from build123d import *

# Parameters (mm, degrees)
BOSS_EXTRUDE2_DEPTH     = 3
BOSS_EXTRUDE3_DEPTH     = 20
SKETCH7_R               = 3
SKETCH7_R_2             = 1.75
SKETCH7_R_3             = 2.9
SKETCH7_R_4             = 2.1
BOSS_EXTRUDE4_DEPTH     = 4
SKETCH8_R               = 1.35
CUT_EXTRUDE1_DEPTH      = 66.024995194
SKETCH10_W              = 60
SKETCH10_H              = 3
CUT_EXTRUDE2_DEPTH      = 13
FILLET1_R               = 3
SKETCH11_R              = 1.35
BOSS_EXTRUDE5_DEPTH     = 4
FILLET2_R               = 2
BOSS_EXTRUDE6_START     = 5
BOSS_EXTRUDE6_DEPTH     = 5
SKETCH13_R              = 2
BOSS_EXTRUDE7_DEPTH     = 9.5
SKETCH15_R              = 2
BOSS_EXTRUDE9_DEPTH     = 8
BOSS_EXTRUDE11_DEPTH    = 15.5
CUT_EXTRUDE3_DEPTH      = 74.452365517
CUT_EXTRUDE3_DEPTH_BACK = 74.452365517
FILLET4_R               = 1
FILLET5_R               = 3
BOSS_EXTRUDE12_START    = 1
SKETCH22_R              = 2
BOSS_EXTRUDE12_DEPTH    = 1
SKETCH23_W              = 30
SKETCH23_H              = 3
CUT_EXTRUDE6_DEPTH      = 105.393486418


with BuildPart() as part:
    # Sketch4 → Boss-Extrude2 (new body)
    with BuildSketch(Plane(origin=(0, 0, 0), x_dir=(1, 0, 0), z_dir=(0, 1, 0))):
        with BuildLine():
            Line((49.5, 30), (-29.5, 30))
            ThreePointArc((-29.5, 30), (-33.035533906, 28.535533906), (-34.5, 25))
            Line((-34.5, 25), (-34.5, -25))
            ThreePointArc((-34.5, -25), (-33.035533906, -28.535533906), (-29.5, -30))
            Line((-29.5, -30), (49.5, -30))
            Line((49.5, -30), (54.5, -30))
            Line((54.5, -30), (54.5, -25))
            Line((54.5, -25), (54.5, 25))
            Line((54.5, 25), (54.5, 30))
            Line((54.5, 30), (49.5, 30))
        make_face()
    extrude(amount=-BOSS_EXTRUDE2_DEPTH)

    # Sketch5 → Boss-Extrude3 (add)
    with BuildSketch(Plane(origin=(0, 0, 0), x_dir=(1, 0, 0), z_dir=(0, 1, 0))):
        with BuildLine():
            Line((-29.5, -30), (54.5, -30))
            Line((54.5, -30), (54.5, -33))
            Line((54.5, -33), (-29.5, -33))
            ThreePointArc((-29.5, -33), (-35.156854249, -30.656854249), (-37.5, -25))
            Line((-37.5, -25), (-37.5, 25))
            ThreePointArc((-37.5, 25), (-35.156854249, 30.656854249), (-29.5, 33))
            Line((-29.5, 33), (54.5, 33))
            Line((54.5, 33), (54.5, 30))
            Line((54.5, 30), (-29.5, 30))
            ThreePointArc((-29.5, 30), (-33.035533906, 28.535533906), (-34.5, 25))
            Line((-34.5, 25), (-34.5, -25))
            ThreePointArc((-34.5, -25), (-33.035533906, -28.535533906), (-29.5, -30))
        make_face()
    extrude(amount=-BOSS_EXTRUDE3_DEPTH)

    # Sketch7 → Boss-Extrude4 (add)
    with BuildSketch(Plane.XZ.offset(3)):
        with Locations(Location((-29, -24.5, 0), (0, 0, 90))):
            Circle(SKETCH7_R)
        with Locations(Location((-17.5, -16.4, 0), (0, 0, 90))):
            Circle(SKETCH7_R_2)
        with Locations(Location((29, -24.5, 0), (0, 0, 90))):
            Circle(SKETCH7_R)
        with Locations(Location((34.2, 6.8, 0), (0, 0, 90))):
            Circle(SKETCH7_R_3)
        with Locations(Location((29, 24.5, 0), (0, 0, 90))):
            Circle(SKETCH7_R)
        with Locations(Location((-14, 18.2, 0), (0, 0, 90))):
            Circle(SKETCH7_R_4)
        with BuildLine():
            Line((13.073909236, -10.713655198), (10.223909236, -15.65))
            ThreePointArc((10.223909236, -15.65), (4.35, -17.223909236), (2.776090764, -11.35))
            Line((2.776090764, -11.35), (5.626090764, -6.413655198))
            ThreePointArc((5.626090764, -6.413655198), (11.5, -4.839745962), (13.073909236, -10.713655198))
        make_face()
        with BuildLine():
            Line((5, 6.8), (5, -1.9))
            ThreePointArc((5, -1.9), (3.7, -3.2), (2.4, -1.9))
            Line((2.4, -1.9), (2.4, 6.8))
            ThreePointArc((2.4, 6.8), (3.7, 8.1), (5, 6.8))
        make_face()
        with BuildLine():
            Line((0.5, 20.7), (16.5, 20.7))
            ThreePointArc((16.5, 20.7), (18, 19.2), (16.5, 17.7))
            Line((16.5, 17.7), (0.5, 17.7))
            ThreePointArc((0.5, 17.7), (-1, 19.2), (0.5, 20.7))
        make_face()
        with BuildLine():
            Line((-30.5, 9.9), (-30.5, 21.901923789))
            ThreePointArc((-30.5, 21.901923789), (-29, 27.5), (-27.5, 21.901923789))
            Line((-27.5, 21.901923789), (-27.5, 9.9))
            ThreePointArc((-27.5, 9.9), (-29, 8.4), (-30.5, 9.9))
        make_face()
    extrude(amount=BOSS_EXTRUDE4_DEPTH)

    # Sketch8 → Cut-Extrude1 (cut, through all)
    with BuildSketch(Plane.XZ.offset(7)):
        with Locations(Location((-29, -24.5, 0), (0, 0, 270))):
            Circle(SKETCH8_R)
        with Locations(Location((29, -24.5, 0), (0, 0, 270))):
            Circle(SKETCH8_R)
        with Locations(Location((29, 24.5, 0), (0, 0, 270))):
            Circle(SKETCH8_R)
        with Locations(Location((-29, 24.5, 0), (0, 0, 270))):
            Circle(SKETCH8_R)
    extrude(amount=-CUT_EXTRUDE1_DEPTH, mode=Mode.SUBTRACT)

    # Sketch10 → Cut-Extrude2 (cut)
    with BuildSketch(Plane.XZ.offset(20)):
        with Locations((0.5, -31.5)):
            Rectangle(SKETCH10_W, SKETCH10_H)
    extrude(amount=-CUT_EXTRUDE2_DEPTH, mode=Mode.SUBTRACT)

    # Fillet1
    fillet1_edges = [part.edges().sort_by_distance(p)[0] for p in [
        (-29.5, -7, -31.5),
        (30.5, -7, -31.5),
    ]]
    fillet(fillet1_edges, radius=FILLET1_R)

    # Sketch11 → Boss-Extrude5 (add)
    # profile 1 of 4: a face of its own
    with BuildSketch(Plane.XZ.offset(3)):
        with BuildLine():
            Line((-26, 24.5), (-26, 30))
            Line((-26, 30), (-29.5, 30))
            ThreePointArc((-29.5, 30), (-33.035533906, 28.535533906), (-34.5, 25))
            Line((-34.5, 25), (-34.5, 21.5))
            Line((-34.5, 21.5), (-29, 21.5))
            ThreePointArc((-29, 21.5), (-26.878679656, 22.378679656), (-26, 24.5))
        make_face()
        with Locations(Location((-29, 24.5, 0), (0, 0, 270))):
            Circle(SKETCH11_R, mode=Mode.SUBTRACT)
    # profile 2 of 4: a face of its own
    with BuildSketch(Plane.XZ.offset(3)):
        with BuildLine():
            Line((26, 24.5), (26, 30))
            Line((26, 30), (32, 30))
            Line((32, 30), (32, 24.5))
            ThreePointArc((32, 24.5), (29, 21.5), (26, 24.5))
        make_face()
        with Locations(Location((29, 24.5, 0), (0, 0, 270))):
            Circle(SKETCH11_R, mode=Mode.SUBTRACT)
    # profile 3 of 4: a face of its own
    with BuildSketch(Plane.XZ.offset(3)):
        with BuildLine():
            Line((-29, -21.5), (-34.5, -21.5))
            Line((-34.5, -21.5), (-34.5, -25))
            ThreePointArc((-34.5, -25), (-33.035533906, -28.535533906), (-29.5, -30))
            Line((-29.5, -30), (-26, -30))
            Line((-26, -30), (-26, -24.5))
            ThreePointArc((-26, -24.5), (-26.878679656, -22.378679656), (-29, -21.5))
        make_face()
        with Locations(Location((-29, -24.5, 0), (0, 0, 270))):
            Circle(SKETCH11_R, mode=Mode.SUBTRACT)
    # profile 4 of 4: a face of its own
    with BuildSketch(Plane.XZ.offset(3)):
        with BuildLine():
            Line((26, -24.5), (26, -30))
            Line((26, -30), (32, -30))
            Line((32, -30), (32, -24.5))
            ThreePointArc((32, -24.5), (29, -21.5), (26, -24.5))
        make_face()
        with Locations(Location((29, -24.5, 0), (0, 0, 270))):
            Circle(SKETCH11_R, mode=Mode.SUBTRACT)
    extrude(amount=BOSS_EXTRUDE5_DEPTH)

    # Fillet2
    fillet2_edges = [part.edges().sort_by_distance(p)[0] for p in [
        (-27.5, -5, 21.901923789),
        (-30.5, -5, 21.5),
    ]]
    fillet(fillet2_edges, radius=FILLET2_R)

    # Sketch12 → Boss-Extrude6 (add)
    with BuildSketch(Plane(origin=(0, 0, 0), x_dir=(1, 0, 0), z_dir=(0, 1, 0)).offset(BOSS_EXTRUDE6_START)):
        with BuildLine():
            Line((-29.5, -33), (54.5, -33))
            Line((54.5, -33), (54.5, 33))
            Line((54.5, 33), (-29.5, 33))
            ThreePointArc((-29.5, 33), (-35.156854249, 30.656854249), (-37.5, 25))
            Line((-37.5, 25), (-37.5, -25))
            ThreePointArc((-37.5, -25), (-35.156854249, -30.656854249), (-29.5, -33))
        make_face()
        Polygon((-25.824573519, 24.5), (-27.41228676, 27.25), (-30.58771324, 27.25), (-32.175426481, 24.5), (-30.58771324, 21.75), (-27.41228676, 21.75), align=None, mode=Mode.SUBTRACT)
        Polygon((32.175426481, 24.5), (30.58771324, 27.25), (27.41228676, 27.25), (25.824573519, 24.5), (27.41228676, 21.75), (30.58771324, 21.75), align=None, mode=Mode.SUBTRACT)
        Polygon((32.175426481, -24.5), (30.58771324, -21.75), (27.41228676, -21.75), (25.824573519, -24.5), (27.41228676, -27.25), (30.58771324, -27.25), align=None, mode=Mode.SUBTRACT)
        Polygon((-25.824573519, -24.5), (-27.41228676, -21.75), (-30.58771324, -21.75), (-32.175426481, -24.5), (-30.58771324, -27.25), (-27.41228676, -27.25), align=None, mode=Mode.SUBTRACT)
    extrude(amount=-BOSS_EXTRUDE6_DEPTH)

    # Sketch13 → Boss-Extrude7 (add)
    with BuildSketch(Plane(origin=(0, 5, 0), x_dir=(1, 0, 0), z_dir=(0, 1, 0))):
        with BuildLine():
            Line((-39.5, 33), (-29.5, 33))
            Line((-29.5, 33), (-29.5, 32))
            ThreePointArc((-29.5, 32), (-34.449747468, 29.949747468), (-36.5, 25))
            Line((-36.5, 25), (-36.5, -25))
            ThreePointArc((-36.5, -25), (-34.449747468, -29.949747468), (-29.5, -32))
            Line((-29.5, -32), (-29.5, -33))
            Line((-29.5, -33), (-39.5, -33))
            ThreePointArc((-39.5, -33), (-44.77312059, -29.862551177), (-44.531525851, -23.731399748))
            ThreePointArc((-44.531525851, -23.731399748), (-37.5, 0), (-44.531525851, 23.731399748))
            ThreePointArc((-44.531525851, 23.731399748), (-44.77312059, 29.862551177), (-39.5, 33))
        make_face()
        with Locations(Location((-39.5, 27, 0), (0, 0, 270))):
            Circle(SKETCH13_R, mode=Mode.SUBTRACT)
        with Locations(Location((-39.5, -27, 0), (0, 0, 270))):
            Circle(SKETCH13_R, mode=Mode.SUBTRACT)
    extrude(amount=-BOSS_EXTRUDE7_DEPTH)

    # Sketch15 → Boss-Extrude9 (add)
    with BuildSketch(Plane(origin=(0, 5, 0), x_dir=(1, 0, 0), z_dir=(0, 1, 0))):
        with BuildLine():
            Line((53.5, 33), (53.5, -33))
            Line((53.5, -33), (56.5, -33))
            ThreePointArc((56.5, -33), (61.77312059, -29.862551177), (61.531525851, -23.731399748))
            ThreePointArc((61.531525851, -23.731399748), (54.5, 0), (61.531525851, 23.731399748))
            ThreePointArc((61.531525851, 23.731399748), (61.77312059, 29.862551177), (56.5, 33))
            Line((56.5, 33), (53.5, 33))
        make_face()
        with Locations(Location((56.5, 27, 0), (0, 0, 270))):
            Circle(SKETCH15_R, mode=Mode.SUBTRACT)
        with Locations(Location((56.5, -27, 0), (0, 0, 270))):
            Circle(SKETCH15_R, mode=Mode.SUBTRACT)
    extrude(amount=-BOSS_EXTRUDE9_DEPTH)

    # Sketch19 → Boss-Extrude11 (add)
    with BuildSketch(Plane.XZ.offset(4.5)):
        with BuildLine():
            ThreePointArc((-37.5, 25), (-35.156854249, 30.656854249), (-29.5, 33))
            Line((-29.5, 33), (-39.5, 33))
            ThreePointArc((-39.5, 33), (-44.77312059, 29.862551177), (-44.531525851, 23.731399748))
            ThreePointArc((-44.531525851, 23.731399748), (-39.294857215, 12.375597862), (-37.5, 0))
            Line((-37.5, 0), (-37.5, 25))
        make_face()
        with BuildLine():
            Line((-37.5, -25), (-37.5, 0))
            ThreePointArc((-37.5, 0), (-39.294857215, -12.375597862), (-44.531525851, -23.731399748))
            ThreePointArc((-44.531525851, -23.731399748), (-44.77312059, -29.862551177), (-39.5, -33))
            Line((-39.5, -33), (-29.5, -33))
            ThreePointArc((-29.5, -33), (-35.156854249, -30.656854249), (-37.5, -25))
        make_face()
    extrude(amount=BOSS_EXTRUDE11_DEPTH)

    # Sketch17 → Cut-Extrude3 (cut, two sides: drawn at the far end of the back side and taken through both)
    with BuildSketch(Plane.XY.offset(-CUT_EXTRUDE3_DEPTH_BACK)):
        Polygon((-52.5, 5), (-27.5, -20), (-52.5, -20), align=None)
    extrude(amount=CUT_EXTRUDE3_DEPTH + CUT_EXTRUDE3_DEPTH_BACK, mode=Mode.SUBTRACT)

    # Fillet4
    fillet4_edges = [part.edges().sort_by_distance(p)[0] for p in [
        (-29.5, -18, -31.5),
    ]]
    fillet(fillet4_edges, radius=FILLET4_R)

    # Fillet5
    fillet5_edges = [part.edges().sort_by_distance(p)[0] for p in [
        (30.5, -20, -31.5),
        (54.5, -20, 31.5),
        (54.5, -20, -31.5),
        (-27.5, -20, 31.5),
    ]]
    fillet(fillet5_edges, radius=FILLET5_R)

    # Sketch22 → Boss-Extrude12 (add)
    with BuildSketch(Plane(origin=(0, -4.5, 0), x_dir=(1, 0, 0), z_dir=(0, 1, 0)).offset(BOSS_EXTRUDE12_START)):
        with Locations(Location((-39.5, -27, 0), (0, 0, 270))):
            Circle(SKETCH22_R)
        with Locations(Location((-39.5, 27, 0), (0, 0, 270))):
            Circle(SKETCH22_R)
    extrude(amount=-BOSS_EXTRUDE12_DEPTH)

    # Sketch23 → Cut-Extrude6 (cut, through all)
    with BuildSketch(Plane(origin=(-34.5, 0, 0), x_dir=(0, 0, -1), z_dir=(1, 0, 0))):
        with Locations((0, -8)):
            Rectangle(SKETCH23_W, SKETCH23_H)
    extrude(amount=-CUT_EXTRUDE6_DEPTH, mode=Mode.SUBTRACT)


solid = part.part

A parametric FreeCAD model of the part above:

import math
import FreeCAD as App
import Part
import Sketcher

V = App.Vector
Q = App.Units.Quantity


def edges_at(feature, points):
    """Names of the edges that pass closest to the given points."""
    edges = feature.Shape.Edges
    near = lambda p: min(range(len(edges)), key=lambda i: edges[i].distToShape(Part.Vertex(*p))[0])
    return sorted({f"Edge{near(p) + 1}" for p in points})


def add_polygon(sketch, points):
    """Adds a closed chain of lines whose ends are joined by coincident constraints."""
    first, n = sketch.GeometryCount, len(points)
    for a, b in zip(points, points[1:] + points[:1]):
        sketch.addGeometry(Part.LineSegment(App.Vector(*a, 0), App.Vector(*b, 0)), False)
    for i in range(n):
        sketch.addConstraint(Sketcher.Constraint("Coincident", first + i, 2, first + (i + 1) % n, 1))

doc = App.newDocument("Part")
body = doc.addObject("PartDesign::Body", "Body")

# Sketch on XZ plane
sketch1 = body.newObject("Sketcher::SketchObject", "Sketch")
sketch1.AttachmentSupport = (doc.getObject("XZ_Plane"), [""])
sketch1.MapMode = "FlatFace"
sketch1.addGeometry(Part.ArcOfCircle(Part.Circle(V(-30, -25, 0), V(0, 0, 1), 5), math.radians(180), math.radians(270)), False)
sketch1.addGeometry(Part.LineSegment(V(-34, -25, 0), V(-34, 25, 0)), False)
sketch1.addGeometry(Part.ArcOfCircle(Part.Circle(V(-30, 25, 0), V(0, 0, 1), 5), math.radians(90), math.radians(180)), False)
sketch1.addGeometry(Part.LineSegment(V(-30, 30, 0), V(54, 30, 0)), False)
sketch1.addGeometry(Part.LineSegment(V(54, 30, 0), V(54, -30, 0)), False)
sketch1.addGeometry(Part.LineSegment(V(54, -30, 0), V(-30, -30, 0)), False)
sketch1.addConstraint(Sketcher.Constraint("Tangent", 0, 1, 1, 1))
sketch1.addConstraint(Sketcher.Constraint("Tangent", 1, 2, 2, 2))
sketch1.addConstraint(Sketcher.Constraint("Tangent", 2, 1, 3, 1))
sketch1.addConstraint(Sketcher.Constraint("Coincident", 3, 2, 4, 1))
sketch1.addConstraint(Sketcher.Constraint("Coincident", 4, 2, 5, 1))
sketch1.addConstraint(Sketcher.Constraint("Tangent", 5, 2, 0, 2))
sketch1.addConstraint(Sketcher.Constraint("Vertical", 1))
sketch1.addConstraint(Sketcher.Constraint("Horizontal", 3))
sketch1.addConstraint(Sketcher.Constraint("Vertical", 4))
sketch1.addConstraint(Sketcher.Constraint("Horizontal", 5))
sketch1.addConstraint(Sketcher.Constraint("Equal", 0, 2))
sketch1.addConstraint(Sketcher.Constraint("Radius", 0, 5.0))
sketch1.addConstraint(Sketcher.Constraint("DistanceX", 3, 1, 3, 2, 84.0))
sketch1.addConstraint(Sketcher.Constraint("DistanceY", 1, 1, 1, 2, 50.0))
sketch1.addConstraint(Sketcher.Constraint("DistanceY", 0, 3, -1, 1, 25.0))
sketch1.addConstraint(Sketcher.Constraint("DistanceX", 0, 3, -1, 1, 29.5))
pad1 = body.newObject("PartDesign::Pad", "Pad")
pad1.Profile = sketch1
pad1.Length = 3

# Sketch on XZ plane
sketch2 = body.newObject("Sketcher::SketchObject", "Sketch001")
sketch2.AttachmentSupport = (doc.getObject("XZ_Plane"), [""])
sketch2.MapMode = "FlatFace"
sketch2.addGeometry(Part.LineSegment(V(54.5, 30, 0), V(-29.5, 30, 0)), False)
sketch2.addGeometry(Part.ArcOfCircle(Part.Circle(V(-29.5, 25, 0), V(0, 0, 1), 5), math.radians(90), math.radians(180)), False)
sketch2.addGeometry(Part.LineSegment(V(-34.5, 25, 0), V(-34.5, -25, 0)), False)
sketch2.addGeometry(Part.ArcOfCircle(Part.Circle(V(-29.5, -25, 0), V(0, 0, 1), 5), math.radians(180), math.radians(270)), False)
sketch2.addGeometry(Part.LineSegment(V(-29.5, -30, 0), V(54.5, -30, 0)), False)
sketch2.addGeometry(Part.LineSegment(V(54.5, -30, 0), V(54.5, -33, 0)), False)
sketch2.addGeometry(Part.LineSegment(V(54.5, -33, 0), V(-29.5, -33, 0)), False)
sketch2.addGeometry(Part.ArcOfCircle(Part.Circle(V(-29.5, -25, 0), V(0, 0, 1), 8), math.radians(-180), math.radians(-90)), False)
sketch2.addGeometry(Part.LineSegment(V(-37.5, -25, 0), V(-37.5, 25, 0)), False)
sketch2.addGeometry(Part.ArcOfCircle(Part.Circle(V(-29.5, 25, 0), V(0, 0, 1), 8), math.radians(90), math.radians(180)), False)
sketch2.addGeometry(Part.LineSegment(V(-29.5, 33, 0), V(54.5, 33, 0)), False)
sketch2.addGeometry(Part.LineSegment(V(54.5, 33, 0), V(54.5, 30, 0)), False)
sketch2.addConstraint(Sketcher.Constraint("Tangent", 0, 2, 1, 1))
sketch2.addConstraint(Sketcher.Constraint("Tangent", 1, 2, 2, 1))
sketch2.addConstraint(Sketcher.Constraint("Tangent", 2, 2, 3, 1))
sketch2.addConstraint(Sketcher.Constraint("Tangent", 3, 2, 4, 1))
sketch2.addConstraint(Sketcher.Constraint("Coincident", 4, 2, 5, 1))
sketch2.addConstraint(Sketcher.Constraint("Coincident", 5, 2, 6, 1))
sketch2.addConstraint(Sketcher.Constraint("Tangent", 6, 2, 7, 2))
sketch2.addConstraint(Sketcher.Constraint("Tangent", 7, 1, 8, 1))
sketch2.addConstraint(Sketcher.Constraint("Tangent", 8, 2, 9, 2))
sketch2.addConstraint(Sketcher.Constraint("Tangent", 9, 1, 10, 1))
sketch2.addConstraint(Sketcher.Constraint("Coincident", 10, 2, 11, 1))
sketch2.addConstraint(Sketcher.Constraint("Coincident", 11, 2, 0, 1))
sketch2.addConstraint(Sketcher.Constraint("Horizontal", 0))
sketch2.addConstraint(Sketcher.Constraint("Vertical", 2))
sketch2.addConstraint(Sketcher.Constraint("Horizontal", 4))
sketch2.addConstraint(Sketcher.Constraint("Vertical", 5))
sketch2.addConstraint(Sketcher.Constraint("Horizontal", 6))
sketch2.addConstraint(Sketcher.Constraint("Vertical", 8))
sketch2.addConstraint(Sketcher.Constraint("Horizontal", 10))
sketch2.addConstraint(Sketcher.Constraint("Vertical", 11))
sketch2.addConstraint(Sketcher.Constraint("Coincident", 7, 3, 3, 3))
sketch2.addConstraint(Sketcher.Constraint("Coincident", 9, 3, 1, 3))
sketch2.addConstraint(Sketcher.Constraint("Equal", 1, 3))
sketch2.addConstraint(Sketcher.Constraint("Symmetric", 5, 2, 10, 2, -1))
sketch2.addConstraint(Sketcher.Constraint("Radius", 1, 5.0))
sketch2.addConstraint(Sketcher.Constraint("Radius", 7, 8.0))
sketch2.addConstraint(Sketcher.Constraint("DistanceX", 0, 2, 0, 1, 84.0))
sketch2.addConstraint(Sketcher.Constraint("DistanceY", 2, 2, 2, 1, 50.0))
sketch2.addConstraint(Sketcher.Constraint("DistanceX", 1, 3, -1, 1, 29.5))
pad2 = body.newObject("PartDesign::Pad", "Pad001")
pad2.Profile = sketch2
pad2.Length = 20

# Sketch on XZ plane
sketch3 = body.newObject("Sketcher::SketchObject", "Sketch002")
sketch3.AttachmentSupport = (doc.getObject("XZ_Plane"), [""])
sketch3.MapMode = "FlatFace"
sketch3.AttachmentOffset = App.Placement(V(0, 0, 3), App.Rotation())
sketch3.addGeometry(Part.Circle(V(-29, -24.5, 0), V(0, 0, 1), 3), False)
sketch3.addGeometry(Part.Circle(V(-17.5, -16.4, 0), V(0, 0, 1), 1.8), False)
sketch3.addGeometry(Part.Circle(V(29, -24.5, 0), V(0, 0, 1), 3), False)
sketch3.addGeometry(Part.Circle(V(34.2, 6.8, 0), V(0, 0, 1), 2.9), False)
sketch3.addGeometry(Part.Circle(V(29, 24.5, 0), V(0, 0, 1), 3), False)
sketch3.addGeometry(Part.Circle(V(-14, 18.2, 0), V(0, 0, 1), 2.1), False)
sketch3.addGeometry(Part.LineSegment(V(10.2, -15.7, 0), V(13.1, -10.7, 0)), False)
sketch3.addGeometry(Part.ArcOfCircle(Part.Circle(V(9.3, -8.6, 0), V(0, 0, 1), 4.3), math.radians(-30), math.radians(150)), False)
sketch3.addGeometry(Part.LineSegment(V(5.6, -6.4, 0), V(2.8, -11.3, 0)), False)
sketch3.addGeometry(Part.ArcOfCircle(Part.Circle(V(6.5, -13.5, 0), V(0, 0, 1), 4.3), math.radians(150), math.radians(330)), False)
sketch3.addGeometry(Part.LineSegment(V(5, -1.9, 0), V(5, 6.8, 0)), False)
sketch3.addGeometry(Part.ArcOfCircle(Part.Circle(V(3.7, 6.8, 0), V(0, 0, 1), 1.3), math.radians(0), math.radians(180)), False)
sketch3.addGeometry(Part.LineSegment(V(2.4, 6.8, 0), V(2.4, -1.9, 0)), False)
sketch3.addGeometry(Part.ArcOfCircle(Part.Circle(V(3.7, -1.9, 0), V(0, 0, 1), 1.3), math.radians(180), math.radians(360)), False)
sketch3.addGeometry(Part.LineSegment(V(16.5, 20.7, 0), V(0.5, 20.7, 0)), False)
sketch3.addGeometry(Part.ArcOfCircle(Part.Circle(V(0.5, 19.2, 0), V(0, 0, 1), 1.5), math.radians(90), math.radians(270)), False)
sketch3.addGeometry(Part.LineSegment(V(0.5, 17.7, 0), V(16.5, 17.7, 0)), False)
sketch3.addGeometry(Part.ArcOfCircle(Part.Circle(V(16.5, 19.2, 0), V(0, 0, 1), 1.5), math.radians(-90), math.radians(90)), False)
sketch3.addGeometry(Part.LineSegment(V(-30.5, 21.9, 0), V(-30.5, 9.9, 0)), False)
sketch3.addGeometry(Part.ArcOfCircle(Part.Circle(V(-29, 9.9, 0), V(0, 0, 1), 1.5), math.radians(180), math.radians(360)), False)
sketch3.addGeometry(Part.LineSegment(V(-27.5, 9.9, 0), V(-27.5, 21.9, 0)), False)
sketch3.addGeometry(Part.ArcOfCircle(Part.Circle(V(-29, 24.5, 0), V(0, 0, 1), 3), math.radians(-60), math.radians(240)), False)
sketch3.addConstraint(Sketcher.Constraint("Tangent", 6, 2, 7, 1))
sketch3.addConstraint(Sketcher.Constraint("Tangent", 7, 2, 8, 1))
sketch3.addConstraint(Sketcher.Constraint("Tangent", 8, 2, 9, 1))
sketch3.addConstraint(Sketcher.Constraint("Tangent", 9, 2, 6, 1))
sketch3.addConstraint(Sketcher.Constraint("Tangent", 10, 2, 11, 1))
sketch3.addConstraint(Sketcher.Constraint("Tangent", 11, 2, 12, 1))
sketch3.addConstraint(Sketcher.Constraint("Tangent", 12, 2, 13, 1))
sketch3.addConstraint(Sketcher.Constraint("Tangent", 13, 2, 10, 1))
sketch3.addConstraint(Sketcher.Constraint("Tangent", 14, 2, 15, 1))
sketch3.addConstraint(Sketcher.Constraint("Tangent", 15, 2, 16, 1))
sketch3.addConstraint(Sketcher.Constraint("Tangent", 16, 2, 17, 1))
sketch3.addConstraint(Sketcher.Constraint("Tangent", 17, 2, 14, 1))
sketch3.addConstraint(Sketcher.Constraint("Tangent", 18, 2, 19, 1))
sketch3.addConstraint(Sketcher.Constraint("Tangent", 19, 2, 20, 1))
sketch3.addConstraint(Sketcher.Constraint("Coincident", 20, 2, 21, 1))
sketch3.addConstraint(Sketcher.Constraint("Coincident", 21, 2, 18, 1))
sketch3.addConstraint(Sketcher.Constraint("Vertical", 10))
sketch3.addConstraint(Sketcher.Constraint("Vertical", 12))
sketch3.addConstraint(Sketcher.Constraint("Horizontal", 14))
sketch3.addConstraint(Sketcher.Constraint("Horizontal", 16))
sketch3.addConstraint(Sketcher.Constraint("Vertical", 18))
sketch3.addConstraint(Sketcher.Constraint("Vertical", 20))
sketch3.addConstraint(Sketcher.Constraint("Equal", 0, 2))
sketch3.addConstraint(Sketcher.Constraint("Equal", 2, 4))
sketch3.addConstraint(Sketcher.Constraint("Equal", 7, 9))
sketch3.addConstraint(Sketcher.Constraint("Equal", 17, 19))
sketch3.addConstraint(Sketcher.Constraint("Equal", 4, 21))
sketch3.addConstraint(Sketcher.Constraint("Symmetric", 0, 3, 4, 3, -1, 1))
sketch3.addConstraint(Sketcher.Constraint("Symmetric", 2, 3, 21, 3, -1, 1))
sketch3.addConstraint(Sketcher.Constraint("Symmetric", 0, 3, 2, 3, -2))
sketch3.addConstraint(Sketcher.Constraint("Horizontal", 3, 3, 11, 3))
sketch3.addConstraint(Sketcher.Constraint("Horizontal", 20, 2, 21, 2))
sketch3.addConstraint(Sketcher.Constraint("Diameter", 0, 6.0))
sketch3.addConstraint(Sketcher.Constraint("Diameter", 1, 3.5))
sketch3.addConstraint(Sketcher.Constraint("Diameter", 3, 5.8))
sketch3.addConstraint(Sketcher.Constraint("Diameter", 5, 4.2))
sketch3.addConstraint(Sketcher.Constraint("Radius", 7, 4.3))
sketch3.addConstraint(Sketcher.Constraint("Radius", 11, 1.3))
sketch3.addConstraint(Sketcher.Constraint("Radius", 15, 1.5))
sketch3.addConstraint(Sketcher.Constraint("DistanceX", 14, 2, 14, 1, 16.0))
sketch3.addConstraint(Sketcher.Constraint("Angle", 6, Q("60 deg")))
sketch3.addConstraint(Sketcher.Constraint("DistanceY", 10, 1, 10, 2, 8.7))
sketch3.addConstraint(Sketcher.Constraint("DistanceX", 0, 3, -1, 1, 29.0))
sketch3.addConstraint(Sketcher.Constraint("DistanceX", 5, 3, -1, 1, 14.0))
sketch3.addConstraint(Sketcher.Constraint("DistanceX", -1, 1, 10, 2, 5.0))
sketch3.addConstraint(Sketcher.Constraint("DistanceY", 2, 3, 4, 3, 49.0))
sketch3.addConstraint(Sketcher.Constraint("DistanceX", 1, 3, 9, 3, 24.0))
sketch3.addConstraint(Sketcher.Constraint("DistanceY", 2, 3, 9, 3, 11.0))
sketch3.addConstraint(Sketcher.Constraint("DistanceY", 5, 3, 15, 3, 1.0))
sketch3.addConstraint(Sketcher.Constraint("DistanceX", 18, 2, 1, 3, 13.0))
sketch3.addConstraint(Sketcher.Constraint("DistanceX", 18, 2, 15, 2, 31.0))
sketch3.addConstraint(Sketcher.Constraint("Distance", 6, 5.7))
sketch3.addConstraint(Sketcher.Constraint("DistanceY", 1, 3, -1, 1, 16.4))
sketch3.addConstraint(Sketcher.Constraint("DistanceX", -1, 1, 3, 3, 34.2))
sketch3.addConstraint(Sketcher.Constraint("DistanceY", -1, 1, 3, 3, 6.8))
sketch3.addConstraint(Sketcher.Constraint("DistanceY", -1, 1, 5, 3, 18.2))
sketch3.addConstraint(Sketcher.Constraint("DistanceY", -1, 1, 19, 3, 9.9))
pad3 = body.newObject("PartDesign::Pad", "Pad002")
pad3.Profile = sketch3
pad3.Length = 4

# Sketch on XZ plane
sketch4 = body.newObject("Sketcher::SketchObject", "Sketch003")
sketch4.AttachmentSupport = (doc.getObject("XZ_Plane"), [""])
sketch4.MapMode = "FlatFace"
sketch4.AttachmentOffset = App.Placement(V(0, 0, 7), App.Rotation())
sketch4.addGeometry(Part.Circle(V(-29, -24.5, 0), V(0, 0, 1), 1.4), False)
sketch4.addGeometry(Part.Circle(V(29, -24.5, 0), V(0, 0, 1), 1.4), False)
sketch4.addGeometry(Part.Circle(V(29, 24.5, 0), V(0, 0, 1), 1.4), False)
sketch4.addGeometry(Part.Circle(V(-29, 24.5, 0), V(0, 0, 1), 1.4), False)
sketch4.addConstraint(Sketcher.Constraint("Equal", 0, 1))
sketch4.addConstraint(Sketcher.Constraint("Equal", 1, 2))
sketch4.addConstraint(Sketcher.Constraint("Equal", 2, 3))
sketch4.addConstraint(Sketcher.Constraint("Symmetric", 0, 3, 2, 3, -1, 1))
sketch4.addConstraint(Sketcher.Constraint("Symmetric", 1, 3, 3, 3, -1, 1))
sketch4.addConstraint(Sketcher.Constraint("Symmetric", 0, 3, 1, 3, -2))
sketch4.addConstraint(Sketcher.Constraint("Diameter", 0, 2.7))
sketch4.addConstraint(Sketcher.Constraint("DistanceX", 0, 3, -1, 1, 29.0))
sketch4.addConstraint(Sketcher.Constraint("DistanceY", 1, 3, 2, 3, 49.0))
pocket1 = body.newObject("PartDesign::Pocket", "Pocket")
pocket1.Profile = sketch4
pocket1.Type = "ThroughAll"

# Sketch on XZ plane
sketch5 = body.newObject("Sketcher::SketchObject", "Sketch004")
sketch5.AttachmentSupport = (doc.getObject("XZ_Plane"), [""])
sketch5.MapMode = "FlatFace"
sketch5.AttachmentOffset = App.Placement(V(0, 0, 20), App.Rotation())
add_polygon(sketch5, [(-29.5, -30), (-29.5, -33), (30.5, -33), (30.5, -30)])  # lines 0-3
sketch5.addConstraint(Sketcher.Constraint("Vertical", 0))
sketch5.addConstraint(Sketcher.Constraint("Horizontal", 1))
sketch5.addConstraint(Sketcher.Constraint("Vertical", 2))
sketch5.addConstraint(Sketcher.Constraint("Horizontal", 3))
sketch5.addConstraint(Sketcher.Constraint("DistanceX", 1, 1, 1, 2, 60.0))
sketch5.addConstraint(Sketcher.Constraint("DistanceY", 0, 2, 0, 1, 3.0))
sketch5.addConstraint(Sketcher.Constraint("DistanceY", 0, 2, -1, 1, 33.0))
sketch5.addConstraint(Sketcher.Constraint("DistanceX", 0, 2, -1, 1, 29.5))
pocket2 = body.newObject("PartDesign::Pocket", "Pocket001")
pocket2.Profile = sketch5
pocket2.Length = 13
doc.recompute()

fillet = body.newObject("PartDesign::Fillet", "Fillet")
fillet.Base = (pocket2, edges_at(pocket2, [(-29.5, -7, -31.5), (30.5, -7, -31.5)]))
fillet.Radius = 3

# Sketch on XZ plane
sketch6 = body.newObject("Sketcher::SketchObject", "Sketch005")
sketch6.AttachmentSupport = (doc.getObject("XZ_Plane"), [""])
sketch6.MapMode = "FlatFace"
sketch6.AttachmentOffset = App.Placement(V(0, 0, 3), App.Rotation())
sketch6.addGeometry(Part.LineSegment(V(-26, 24.5, 0), V(-26, 30, 0)), False)
sketch6.addGeometry(Part.LineSegment(V(-26, 30, 0), V(-29.5, 30, 0)), False)
sketch6.addGeometry(Part.ArcOfCircle(Part.Circle(V(-29.5, 25, 0), V(0, 0, 1), 5), math.radians(90), math.radians(180)), False)
sketch6.addGeometry(Part.LineSegment(V(-34.5, 25, 0), V(-34.5, 21.5, 0)), False)
sketch6.addGeometry(Part.LineSegment(V(-34.5, 21.5, 0), V(-29, 21.5, 0)), False)
sketch6.addGeometry(Part.ArcOfCircle(Part.Circle(V(-29, 24.5, 0), V(0, 0, 1), 3), math.radians(-90), math.radians(0)), False)
sketch6.addGeometry(Part.Circle(V(-29, 24.5, 0), V(0, 0, 1), 1.4), False)
sketch6.addGeometry(Part.LineSegment(V(26, 30, 0), V(26, 24.5, 0)), False)
sketch6.addGeometry(Part.ArcOfCircle(Part.Circle(V(29, 24.5, 0), V(0, 0, 1), 3), math.radians(180), math.radians(360)), False)
sketch6.addGeometry(Part.LineSegment(V(32, 24.5, 0), V(32, 30, 0)), False)
sketch6.addGeometry(Part.LineSegment(V(32, 30, 0), V(26, 30, 0)), False)
sketch6.addGeometry(Part.Circle(V(29, 24.5, 0), V(0, 0, 1), 1.4), False)
sketch6.addGeometry(Part.LineSegment(V(-29, -21.5, 0), V(-34.5, -21.5, 0)), False)
sketch6.addGeometry(Part.LineSegment(V(-34.5, -21.5, 0), V(-34.5, -25, 0)), False)
sketch6.addGeometry(Part.ArcOfCircle(Part.Circle(V(-29.5, -25, 0), V(0, 0, 1), 5), math.radians(180), math.radians(270)), False)
sketch6.addGeometry(Part.LineSegment(V(-29.5, -30, 0), V(-26, -30, 0)), False)
sketch6.addGeometry(Part.LineSegment(V(-26, -30, 0), V(-26, -24.5, 0)), False)
sketch6.addGeometry(Part.ArcOfCircle(Part.Circle(V(-29, -24.5, 0), V(0, 0, 1), 3), math.radians(0), math.radians(90)), False)
sketch6.addGeometry(Part.Circle(V(-29, -24.5, 0), V(0, 0, 1), 1.4), False)
sketch6.addGeometry(Part.LineSegment(V(26, -24.5, 0), V(26, -30, 0)), False)
sketch6.addGeometry(Part.LineSegment(V(26, -30, 0), V(32, -30, 0)), False)
sketch6.addGeometry(Part.LineSegment(V(32, -30, 0), V(32, -24.5, 0)), False)
sketch6.addGeometry(Part.ArcOfCircle(Part.Circle(V(29, -24.5, 0), V(0, 0, 1), 3), math.radians(0), math.radians(180)), False)
sketch6.addGeometry(Part.Circle(V(29, -24.5, 0), V(0, 0, 1), 1.4), False)
sketch6.addConstraint(Sketcher.Constraint("Coincident", 0, 2, 1, 1))
sketch6.addConstraint(Sketcher.Constraint("Tangent", 1, 2, 2, 1))
sketch6.addConstraint(Sketcher.Constraint("Tangent", 2, 2, 3, 1))
sketch6.addConstraint(Sketcher.Constraint("Coincident", 3, 2, 4, 1))
sketch6.addConstraint(Sketcher.Constraint("Tangent", 4, 2, 5, 1))
sketch6.addConstraint(Sketcher.Constraint("Tangent", 5, 2, 0, 1))
sketch6.addConstraint(Sketcher.Constraint("Tangent", 7, 2, 8, 1))
sketch6.addConstraint(Sketcher.Constraint("Tangent", 8, 2, 9, 1))
sketch6.addConstraint(Sketcher.Constraint("Coincident", 9, 2, 10, 1))
sketch6.addConstraint(Sketcher.Constraint("Coincident", 10, 2, 7, 1))
sketch6.addConstraint(Sketcher.Constraint("Coincident", 12, 2, 13, 1))
sketch6.addConstraint(Sketcher.Constraint("Tangent", 13, 2, 14, 1))
sketch6.addConstraint(Sketcher.Constraint("Tangent", 14, 2, 15, 1))
sketch6.addConstraint(Sketcher.Constraint("Coincident", 15, 2, 16, 1))
sketch6.addConstraint(Sketcher.Constraint("Tangent", 16, 2, 17, 1))
sketch6.addConstraint(Sketcher.Constraint("Tangent", 17, 2, 12, 1))
sketch6.addConstraint(Sketcher.Constraint("Coincident", 19, 2, 20, 1))
sketch6.addConstraint(Sketcher.Constraint("Coincident", 20, 2, 21, 1))
sketch6.addConstraint(Sketcher.Constraint("Tangent", 21, 2, 22, 1))
sketch6.addConstraint(Sketcher.Constraint("Tangent", 22, 2, 19, 1))
sketch6.addConstraint(Sketcher.Constraint("Vertical", 0))
sketch6.addConstraint(Sketcher.Constraint("Horizontal", 1))
sketch6.addConstraint(Sketcher.Constraint("Vertical", 3))
sketch6.addConstraint(Sketcher.Constraint("Horizontal", 4))
sketch6.addConstraint(Sketcher.Constraint("Vertical", 7))
sketch6.addConstraint(Sketcher.Constraint("Vertical", 9))
sketch6.addConstraint(Sketcher.Constraint("Horizontal", 10))
sketch6.addConstraint(Sketcher.Constraint("Horizontal", 12))
sketch6.addConstraint(Sketcher.Constraint("Vertical", 13))
sketch6.addConstraint(Sketcher.Constraint("Horizontal", 15))
sketch6.addConstraint(Sketcher.Constraint("Vertical", 16))
sketch6.addConstraint(Sketcher.Constraint("Vertical", 19))
sketch6.addConstraint(Sketcher.Constraint("Horizontal", 20))
sketch6.addConstraint(Sketcher.Constraint("Vertical", 21))
sketch6.addConstraint(Sketcher.Constraint("Coincident", 6, 3, 5, 3))
sketch6.addConstraint(Sketcher.Constraint("Coincident", 11, 3, 8, 3))
sketch6.addConstraint(Sketcher.Constraint("Coincident", 18, 3, 17, 3))
sketch6.addConstraint(Sketcher.Constraint("Coincident", 23, 3, 22, 3))
sketch6.addConstraint(Sketcher.Constraint("Equal", 5, 8))
sketch6.addConstraint(Sketcher.Constraint("Equal", 6, 11))
sketch6.addConstraint(Sketcher.Constraint("Equal", 2, 14))
sketch6.addConstraint(Sketcher.Constraint("Equal", 8, 17))
sketch6.addConstraint(Sketcher.Constraint("Equal", 11, 18))
sketch6.addConstraint(Sketcher.Constraint("Equal", 17, 22))
sketch6.addConstraint(Sketcher.Constraint("Equal", 18, 23))
sketch6.addConstraint(Sketcher.Constraint("Symmetric", 8, 3, 17, 3, -1, 1))
sketch6.addConstraint(Sketcher.Constraint("Symmetric", 5, 3, 22, 3, -1, 1))
sketch6.addConstraint(Sketcher.Constraint("Symmetric", 5, 3, 8, 3, -2))
sketch6.addConstraint(Sketcher.Constraint("Symmetric", 2, 3, 14, 3, -1))
sketch6.addConstraint(Sketcher.Constraint("Horizontal", 1, 2, 9, 2))
sketch6.addConstraint(Sketcher.Constraint("Horizontal", 15, 2, 19, 2))
sketch6.addConstraint(Sketcher.Constraint("Equal", 12, 0))
sketch6.addConstraint(Sketcher.Constraint("Radius", 2, 5.0))
sketch6.addConstraint(Sketcher.Constraint("Radius", 5, 3.0))
sketch6.addConstraint(Sketcher.Constraint("Diameter", 6, 2.7))
sketch6.addConstraint(Sketcher.Constraint("DistanceX", 1, 2, 1, 1, 3.5))
sketch6.addConstraint(Sketcher.Constraint("DistanceY", -1, 1, 2, 3, 25.0))
sketch6.addConstraint(Sketcher.Constraint("DistanceX", 5, 3, -1, 1, 29.0))
pad4 = body.newObject("PartDesign::Pad", "Pad003")
pad4.Profile = sketch6
pad4.Length = 4
doc.recompute()

fillet2 = body.newObject("PartDesign::Fillet", "Fillet001")
fillet2.Base = (pad4, edges_at(pad4, [(-27.5, -5, 21.902), (-30.5, -5, 21.5)]))
fillet2.Radius = 2

# Sketch on XZ plane
sketch7 = body.newObject("Sketcher::SketchObject", "Sketch006")
sketch7.AttachmentSupport = (doc.getObject("XZ_Plane"), [""])
sketch7.MapMode = "FlatFace"
sketch7.AttachmentOffset = App.Placement(V(0, 0, -5), App.Rotation())
sketch7.addGeometry(Part.LineSegment(V(-29.5, 33, 0), V(54.5, 33, 0)), False)  # 0
sketch7.addGeometry(Part.LineSegment(V(54.5, 33, 0), V(54.5, -33, 0)), False)  # 1
sketch7.addGeometry(Part.LineSegment(V(54.5, -33, 0), V(-29.5, -33, 0)), False)  # 2
sketch7.addGeometry(Part.ArcOfCircle(Part.Circle(V(-29.5, -25, 0), V(0, 0, 1), 8), math.radians(-180), math.radians(-90)), False)  # 3
sketch7.addGeometry(Part.LineSegment(V(-37.5, -25, 0), V(-37.5, 25, 0)), False)  # 4
sketch7.addGeometry(Part.ArcOfCircle(Part.Circle(V(-29.5, 25, 0), V(0, 0, 1), 8), math.radians(90), math.radians(180)), False)  # 5
add_polygon(sketch7, [(-27.4, 21.8), (-25.8, 24.5), (-27.4, 27.2), (-30.6, 27.2), (-32.2, 24.5), (-30.6, 21.8)])  # lines 6-11
add_polygon(sketch7, [(30.6, 21.8), (32.2, 24.5), (30.6, 27.2), (27.4, 27.2), (25.8, 24.5), (27.4, 21.8)])  # lines 12-17
add_polygon(sketch7, [(-27.4, -27.2), (-25.8, -24.5), (-27.4, -21.8), (-30.6, -21.8), (-32.2, -24.5), (-30.6, -27.2)])  # lines 18-23
add_polygon(sketch7, [(30.6, -27.2), (32.2, -24.5), (30.6, -21.8), (27.4, -21.8), (25.8, -24.5), (27.4, -27.2)])  # lines 24-29
sketch7.addConstraint(Sketcher.Constraint("Coincident", 0, 2, 1, 1))
sketch7.addConstraint(Sketcher.Constraint("Coincident", 1, 2, 2, 1))
sketch7.addConstraint(Sketcher.Constraint("Tangent", 2, 2, 3, 2))
sketch7.addConstraint(Sketcher.Constraint("Tangent", 3, 1, 4, 1))
sketch7.addConstraint(Sketcher.Constraint("Tangent", 4, 2, 5, 2))
sketch7.addConstraint(Sketcher.Constraint("Tangent", 5, 1, 0, 1))
sketch7.addConstraint(Sketcher.Constraint("Horizontal", 0))
sketch7.addConstraint(Sketcher.Constraint("Vertical", 1))
sketch7.addConstraint(Sketcher.Constraint("Horizontal", 2))
sketch7.addConstraint(Sketcher.Constraint("Vertical", 4))
sketch7.addConstraint(Sketcher.Constraint("Horizontal", 8))
sketch7.addConstraint(Sketcher.Constraint("Horizontal", 11))
sketch7.addConstraint(Sketcher.Constraint("Horizontal", 14))
sketch7.addConstraint(Sketcher.Constraint("Horizontal", 17))
sketch7.addConstraint(Sketcher.Constraint("Horizontal", 20))
sketch7.addConstraint(Sketcher.Constraint("Horizontal", 23))
sketch7.addConstraint(Sketcher.Constraint("Horizontal", 26))
sketch7.addConstraint(Sketcher.Constraint("Horizontal", 29))
sketch7.addConstraint(Sketcher.Constraint("Equal", 3, 5))
sketch7.addConstraint(Sketcher.Constraint("Symmetric", 15, 2, 18, 2, -1, 1))
sketch7.addConstraint(Sketcher.Constraint("Symmetric", 16, 2, 19, 2, -1, 1))
sketch7.addConstraint(Sketcher.Constraint("Symmetric", 12, 2, 21, 2, -1, 1))
sketch7.addConstraint(Sketcher.Constraint("Symmetric", 13, 2, 22, 2, -1, 1))
sketch7.addConstraint(Sketcher.Constraint("Symmetric", 9, 2, 24, 2, -1, 1))
sketch7.addConstraint(Sketcher.Constraint("Symmetric", 10, 2, 25, 2, -1, 1))
sketch7.addConstraint(Sketcher.Constraint("Symmetric", 6, 2, 27, 2, -1, 1))
sketch7.addConstraint(Sketcher.Constraint("Symmetric", 7, 2, 28, 2, -1, 1))
sketch7.addConstraint(Sketcher.Constraint("Symmetric", 9, 2, 12, 2, -2))
sketch7.addConstraint(Sketcher.Constraint("Symmetric", 8, 2, 13, 2, -2))
sketch7.addConstraint(Sketcher.Constraint("Symmetric", 6, 2, 15, 2, -2))
sketch7.addConstraint(Sketcher.Constraint("Symmetric", 11, 2, 16, 2, -2))
sketch7.addConstraint(Sketcher.Constraint("Parallel", 6, 9))
sketch7.addConstraint(Sketcher.Constraint("Parallel", 7, 10))
sketch7.addConstraint(Sketcher.Constraint("Parallel", 9, 12))
sketch7.addConstraint(Sketcher.Constraint("Parallel", 10, 13))
sketch7.addConstraint(Sketcher.Constraint("Parallel", 12, 15))
sketch7.addConstraint(Sketcher.Constraint("Parallel", 15, 18))
sketch7.addConstraint(Sketcher.Constraint("Parallel", 18, 21))
sketch7.addConstraint(Sketcher.Constraint("Parallel", 21, 24))
sketch7.addConstraint(Sketcher.Constraint("Parallel", 24, 27))
sketch7.addConstraint(Sketcher.Constraint("Horizontal", 6, 2, 9, 2))
sketch7.addConstraint(Sketcher.Constraint("Vertical", 8, 2, 10, 2))
sketch7.addConstraint(Sketcher.Constraint("Radius", 3, 8.0))
sketch7.addConstraint(Sketcher.Constraint("DistanceX", 0, 1, 0, 2, 84.0))
sketch7.addConstraint(Sketcher.Constraint("DistanceY", 1, 2, 1, 1, 66.0))
sketch7.addConstraint(Sketcher.Constraint("Angle", 6, Q("60 deg")))
sketch7.addConstraint(Sketcher.Constraint("DistanceY", 3, 3, -1, 1, 25.0))
sketch7.addConstraint(Sketcher.Constraint("DistanceX", 6, 2, 12, 2, 58.0))
sketch7.addConstraint(Sketcher.Constraint("DistanceY", 24, 2, 12, 2, 49.0))
sketch7.addConstraint(Sketcher.Constraint("DistanceX", 3, 3, -1, 1, 29.5))
sketch7.addConstraint(Sketcher.Constraint("DistanceY", 10, 2, 8, 2, 5.5))
sketch7.addConstraint(Sketcher.Constraint("DistanceX", 8, 2, 8, 1, 3.175426))
pad5 = body.newObject("PartDesign::Pad", "Pad004")
pad5.Profile = sketch7
pad5.Length = 5

# Sketch on XZ plane
sketch8 = body.newObject("Sketcher::SketchObject", "Sketch007")
sketch8.AttachmentSupport = (doc.getObject("XZ_Plane"), [""])
sketch8.MapMode = "FlatFace"
sketch8.AttachmentOffset = App.Placement(V(0, 0, -5), App.Rotation())
sketch8.addGeometry(Part.LineSegment(V(-29.5, -33, 0), V(-39.5, -33, 0)), False)
sketch8.addGeometry(Part.ArcOfCircle(Part.Circle(V(-39.5, -27, 0), V(0, 0, 1), 6), math.radians(147), math.radians(270)), False)
sketch8.addGeometry(Part.ArcOfCircle(Part.Circle(V(-81.1, 0, 0), V(0, 0, 1), 43.6), math.radians(-33), math.radians(33)), False)
sketch8.addGeometry(Part.ArcOfCircle(Part.Circle(V(-39.5, 27, 0), V(0, 0, 1), 6), math.radians(90), math.radians(213)), False)
sketch8.addGeometry(Part.LineSegment(V(-39.5, 33, 0), V(-29.5, 33, 0)), False)
sketch8.addGeometry(Part.LineSegment(V(-29.5, 33, 0), V(-29.5, 32, 0)), False)
sketch8.addGeometry(Part.ArcOfCircle(Part.Circle(V(-29.5, 25, 0), V(0, 0, 1), 7), math.radians(90), math.radians(180)), False)
sketch8.addGeometry(Part.LineSegment(V(-36.5, 25, 0), V(-36.5, -25, 0)), False)
sketch8.addGeometry(Part.ArcOfCircle(Part.Circle(V(-29.5, -25, 0), V(0, 0, 1), 7), math.radians(-180), math.radians(-90)), False)
sketch8.addGeometry(Part.LineSegment(V(-29.5, -32, 0), V(-29.5, -33, 0)), False)
sketch8.addGeometry(Part.Circle(V(-39.5, 27, 0), V(0, 0, 1), 2), False)
sketch8.addGeometry(Part.Circle(V(-39.5, -27, 0), V(0, 0, 1), 2), False)
sketch8.addConstraint(Sketcher.Constraint("Tangent", 0, 2, 1, 2))
sketch8.addConstraint(Sketcher.Constraint("Tangent", 1, 1, 2, 1))
sketch8.addConstraint(Sketcher.Constraint("Tangent", 2, 2, 3, 2))
sketch8.addConstraint(Sketcher.Constraint("Tangent", 3, 1, 4, 1))
sketch8.addConstraint(Sketcher.Constraint("Coincident", 4, 2, 5, 1))
sketch8.addConstraint(Sketcher.Constraint("Coincident", 5, 2, 6, 1))
sketch8.addConstraint(Sketcher.Constraint("Tangent", 6, 2, 7, 1))
sketch8.addConstraint(Sketcher.Constraint("Tangent", 7, 2, 8, 1))
sketch8.addConstraint(Sketcher.Constraint("Coincident", 8, 2, 9, 1))
sketch8.addConstraint(Sketcher.Constraint("Coincident", 9, 2, 0, 1))
sketch8.addConstraint(Sketcher.Constraint("Horizontal", 0))
sketch8.addConstraint(Sketcher.Constraint("Horizontal", 4))
sketch8.addConstraint(Sketcher.Constraint("Vertical", 5))
sketch8.addConstraint(Sketcher.Constraint("Vertical", 7))
sketch8.addConstraint(Sketcher.Constraint("Vertical", 9))
sketch8.addConstraint(Sketcher.Constraint("Coincident", 10, 3, 3, 3))
sketch8.addConstraint(Sketcher.Constraint("Coincident", 11, 3, 1, 3))
sketch8.addConstraint(Sketcher.Constraint("Equal", 1, 3))
sketch8.addConstraint(Sketcher.Constraint("Equal", 6, 8))
sketch8.addConstraint(Sketcher.Constraint("Equal", 10, 11))
sketch8.addConstraint(Sketcher.Constraint("Symmetric", 1, 3, 3, 3, -1))
sketch8.addConstraint(Sketcher.Constraint("Symmetric", 5, 2, 8, 2, -1))
sketch8.addConstraint(Sketcher.Constraint("Vertical", 8, 3, 4, 2))
sketch8.addConstraint(Sketcher.Constraint("Diameter", 10, 4.0))
sketch8.addConstraint(Sketcher.Constraint("Radius", 1, 6.0))
sketch8.addConstraint(Sketcher.Constraint("Radius", 6, 7.0))
sketch8.addConstraint(Sketcher.Constraint("DistanceX", 0, 2, 0, 1, 10.0))
sketch8.addConstraint(Sketcher.Constraint("DistanceY", 5, 2, 5, 1, 1.0))
sketch8.addConstraint(Sketcher.Constraint("DistanceY", 7, 2, 7, 1, 50.0))
sketch8.addConstraint(Sketcher.Constraint("DistanceX", 1, 3, -1, 1, 39.5))
sketch8.addConstraint(Sketcher.Constraint("Radius", 2, 43.5625))
pad6 = body.newObject("PartDesign::Pad", "Pad005")
pad6.Profile = sketch8
pad6.Length = 9.5

# Sketch on XZ plane
sketch9 = body.newObject("Sketcher::SketchObject", "Sketch008")
sketch9.AttachmentSupport = (doc.getObject("XZ_Plane"), [""])
sketch9.MapMode = "FlatFace"
sketch9.AttachmentOffset = App.Placement(V(0, 0, -5), App.Rotation())
sketch9.addGeometry(Part.LineSegment(V(53.5, -33, 0), V(53.5, 33, 0)), False)
sketch9.addGeometry(Part.LineSegment(V(53.5, 33, 0), V(56.5, 33, 0)), False)
sketch9.addGeometry(Part.ArcOfCircle(Part.Circle(V(56.5, 27, 0), V(0, 0, 1), 6), math.radians(-33), math.radians(90)), False)
sketch9.addGeometry(Part.ArcOfCircle(Part.Circle(V(98.1, 0, 0), V(0, 0, 1), 43.6), math.radians(147), math.radians(213)), False)
sketch9.addGeometry(Part.ArcOfCircle(Part.Circle(V(56.5, -27, 0), V(0, 0, 1), 6), math.radians(-90), math.radians(33)), False)
sketch9.addGeometry(Part.LineSegment(V(56.5, -33, 0), V(53.5, -33, 0)), False)
sketch9.addGeometry(Part.Circle(V(56.5, 27, 0), V(0, 0, 1), 2), False)
sketch9.addGeometry(Part.Circle(V(56.5, -27, 0), V(0, 0, 1), 2), False)
sketch9.addConstraint(Sketcher.Constraint("Coincident", 0, 2, 1, 1))
sketch9.addConstraint(Sketcher.Constraint("Tangent", 1, 2, 2, 2))
sketch9.addConstraint(Sketcher.Constraint("Tangent", 2, 1, 3, 1))
sketch9.addConstraint(Sketcher.Constraint("Tangent", 3, 2, 4, 2))
sketch9.addConstraint(Sketcher.Constraint("Tangent", 4, 1, 5, 1))
sketch9.addConstraint(Sketcher.Constraint("Coincident", 5, 2, 0, 1))
sketch9.addConstraint(Sketcher.Constraint("Vertical", 0))
sketch9.addConstraint(Sketcher.Constraint("Horizontal", 1))
sketch9.addConstraint(Sketcher.Constraint("Horizontal", 5))
sketch9.addConstraint(Sketcher.Constraint("Coincident", 6, 3, 2, 3))
sketch9.addConstraint(Sketcher.Constraint("Coincident", 7, 3, 4, 3))
sketch9.addConstraint(Sketcher.Constraint("Equal", 2, 4))
sketch9.addConstraint(Sketcher.Constraint("Equal", 6, 7))
sketch9.addConstraint(Sketcher.Constraint("Symmetric", 2, 3, 4, 3, -1))
sketch9.addConstraint(Sketcher.Constraint("Diameter", 6, 4.0))
sketch9.addConstraint(Sketcher.Constraint("Radius", 2, 6.0))
sketch9.addConstraint(Sketcher.Constraint("DistanceX", 1, 1, 1, 2, 3.0))
sketch9.addConstraint(Sketcher.Constraint("DistanceY", 0, 1, 0, 2, 66.0))
sketch9.addConstraint(Sketcher.Constraint("DistanceX", -1, 1, 2, 3, 56.5))
sketch9.addConstraint(Sketcher.Constraint("Radius", 3, 43.5625))
pad7 = body.newObject("PartDesign::Pad", "Pad006")
pad7.Profile = sketch9
pad7.Length = 8

# Sketch on XZ plane
sketch10 = body.newObject("Sketcher::SketchObject", "Sketch009")
sketch10.AttachmentSupport = (doc.getObject("XZ_Plane"), [""])
sketch10.MapMode = "FlatFace"
sketch10.AttachmentOffset = App.Placement(V(0, 0, 4.5), App.Rotation())
sketch10.addGeometry(Part.ArcOfCircle(Part.Circle(V(-29, 25, 0), V(0, 0, 1), 8), math.radians(90), math.radians(180)), False)
sketch10.addGeometry(Part.LineSegment(V(-30, 33, 0), V(-40, 33, 0)), False)
sketch10.addGeometry(Part.ArcOfCircle(Part.Circle(V(-40, 27, 0), V(0, 0, 1), 6), math.radians(90), math.radians(213)), False)
sketch10.addGeometry(Part.ArcOfCircle(Part.Circle(V(-81, 0, 0), V(0, 0, 1), 44), math.radians(0), math.radians(33)), False)
sketch10.addGeometry(Part.LineSegment(V(-38, 0, 0), V(-38, 25, 0)), False)
sketch10.addGeometry(Part.LineSegment(V(-38, -25, 0), V(-38, 0, 0)), False)
sketch10.addGeometry(Part.ArcOfCircle(Part.Circle(V(-81, 0, 0), V(0, 0, 1), 44), math.radians(-33), math.radians(0)), False)
sketch10.addGeometry(Part.ArcOfCircle(Part.Circle(V(-40, -27, 0), V(0, 0, 1), 6), math.radians(147), math.radians(270)), False)
sketch10.addGeometry(Part.LineSegment(V(-40, -33, 0), V(-30, -33, 0)), False)
sketch10.addGeometry(Part.ArcOfCircle(Part.Circle(V(-29, -25, 0), V(0, 0, 1), 8), math.radians(-180), math.radians(-90)), False)
sketch10.addConstraint(Sketcher.Constraint("Tangent", 0, 1, 1, 1))
sketch10.addConstraint(Sketcher.Constraint("Tangent", 1, 2, 2, 1))
sketch10.addConstraint(Sketcher.Constraint("Tangent", 2, 2, 3, 2))
sketch10.addConstraint(Sketcher.Constraint("Tangent", 3, 1, 4, 1))
sketch10.addConstraint(Sketcher.Constraint("Tangent", 4, 2, 0, 2))
sketch10.addConstraint(Sketcher.Constraint("Tangent", 5, 2, 6, 2))
sketch10.addConstraint(Sketcher.Constraint("Tangent", 6, 1, 7, 1))
sketch10.addConstraint(Sketcher.Constraint("Tangent", 7, 2, 8, 1))
sketch10.addConstraint(Sketcher.Constraint("Tangent", 8, 2, 9, 2))
sketch10.addConstraint(Sketcher.Constraint("Tangent", 9, 1, 5, 1))
sketch10.addConstraint(Sketcher.Constraint("Horizontal", 1))
sketch10.addConstraint(Sketcher.Constraint("Vertical", 4))
sketch10.addConstraint(Sketcher.Constraint("Vertical", 5))
sketch10.addConstraint(Sketcher.Constraint("Horizontal", 8))
sketch10.addConstraint(Sketcher.Constraint("Coincident", 6, 3, 3, 3))
sketch10.addConstraint(Sketcher.Constraint("Equal", 3, 6))
sketch10.addConstraint(Sketcher.Constraint("Equal", 2, 7))
sketch10.addConstraint(Sketcher.Constraint("Equal", 0, 9))
sketch10.addConstraint(Sketcher.Constraint("Symmetric", 2, 3, 7, 3, -1))
sketch10.addConstraint(Sketcher.Constraint("Radius", 0, 8.0))
sketch10.addConstraint(Sketcher.Constraint("Radius", 2, 6.0))
sketch10.addConstraint(Sketcher.Constraint("DistanceX", 1, 2, 1, 1, 10.0))
sketch10.addConstraint(Sketcher.Constraint("DistanceY", 4, 1, 4, 2, 25.0))
sketch10.addConstraint(Sketcher.Constraint("DistanceX", 0, 3, -1, 1, 29.5))
pad8 = body.newObject("PartDesign::Pad", "Pad007")
pad8.Profile = sketch10
pad8.Length = 15.5

# Sketch on XY plane
sketch11 = body.newObject("Sketcher::SketchObject", "Sketch010")
sketch11.AttachmentSupport = (doc.getObject("XY_Plane"), [""])
sketch11.MapMode = "FlatFace"
add_polygon(sketch11, [(-28, -20), (-52, 5), (-52, -20)])  # lines 0-2
sketch11.addConstraint(Sketcher.Constraint("Vertical", 1))
sketch11.addConstraint(Sketcher.Constraint("Horizontal", 2))
sketch11.addConstraint(Sketcher.Constraint("Equal", 2, 1))
sketch11.addConstraint(Sketcher.Constraint("DistanceX", 2, 1, 2, 2, 25.0))
sketch11.addConstraint(Sketcher.Constraint("DistanceY", -1, 1, 0, 2, 5.0))
sketch11.addConstraint(Sketcher.Constraint("DistanceX", 0, 2, -1, 1, 52.5))
pocket3 = body.newObject("PartDesign::Pocket", "Pocket002")
pocket3.Profile = sketch11
pocket3.Type = "ThroughAll"
pocket3.Midplane = True
doc.recompute()

fillet3 = body.newObject("PartDesign::Fillet", "Fillet002")
fillet3.Base = (pocket3, edges_at(pocket3, [(-29.5, -18, -31.5)]))
fillet3.Radius = 1
doc.recompute()

fillet4 = body.newObject("PartDesign::Fillet", "Fillet003")
fillet4.Base = (fillet3, edges_at(fillet3, [
    (30.5, -20, -31.5),
    (54.5, -20, 31.5),
    (54.5, -20, -31.5),
    (-27.5, -20, 31.5),
]))
fillet4.Radius = 3

# Sketch on XZ plane
sketch12 = body.newObject("Sketcher::SketchObject", "Sketch011")
sketch12.AttachmentSupport = (doc.getObject("XZ_Plane"), [""])
sketch12.MapMode = "FlatFace"
sketch12.AttachmentOffset = App.Placement(V(0, 0, 3.5), App.Rotation())
sketch12.addGeometry(Part.Circle(V(-39.5, 27, 0), V(0, 0, 1), 2), False)
sketch12.addGeometry(Part.Circle(V(-39.5, -27, 0), V(0, 0, 1), 2), False)
sketch12.addConstraint(Sketcher.Constraint("Equal", 0, 1))
sketch12.addConstraint(Sketcher.Constraint("Symmetric", 0, 3, 1, 3, -1))
sketch12.addConstraint(Sketcher.Constraint("Diameter", 0, 4.0))
sketch12.addConstraint(Sketcher.Constraint("DistanceY", -1, 1, 0, 3, 27.0))
sketch12.addConstraint(Sketcher.Constraint("DistanceX", 0, 3, -1, 1, 39.5))
pad9 = body.newObject("PartDesign::Pad", "Pad008")
pad9.Profile = sketch12
pad9.Length = 1

# Sketch on YZ plane
sketch13 = body.newObject("Sketcher::SketchObject", "Sketch012")
sketch13.AttachmentSupport = (doc.getObject("YZ_Plane"), [""])
sketch13.MapMode = "FlatFace"
sketch13.AttachmentOffset = App.Placement(V(0, 0, -34.5), App.Rotation())
add_polygon(sketch13, [(-6.5, 15), (-9.5, 15), (-9.5, -15), (-6.5, -15)])  # lines 0-3
sketch13.addConstraint(Sketcher.Constraint("Horizontal", 0))
sketch13.addConstraint(Sketcher.Constraint("Vertical", 1))
sketch13.addConstraint(Sketcher.Constraint("Horizontal", 2))
sketch13.addConstraint(Sketcher.Constraint("Vertical", 3))
sketch13.addConstraint(Sketcher.Constraint("DistanceX", 0, 2, 0, 1, 3.0))
sketch13.addConstraint(Sketcher.Constraint("DistanceY", 1, 2, 1, 1, 30.0))
sketch13.addConstraint(Sketcher.Constraint("DistanceY", -1, 1, 0, 2, 15.0))
sketch13.addConstraint(Sketcher.Constraint("DistanceX", 0, 2, -1, 1, 9.5))
pocket4 = body.newObject("PartDesign::Pocket", "Pocket003")
pocket4.Profile = sketch13
pocket4.Type = "ThroughAll"

doc.recompute()
